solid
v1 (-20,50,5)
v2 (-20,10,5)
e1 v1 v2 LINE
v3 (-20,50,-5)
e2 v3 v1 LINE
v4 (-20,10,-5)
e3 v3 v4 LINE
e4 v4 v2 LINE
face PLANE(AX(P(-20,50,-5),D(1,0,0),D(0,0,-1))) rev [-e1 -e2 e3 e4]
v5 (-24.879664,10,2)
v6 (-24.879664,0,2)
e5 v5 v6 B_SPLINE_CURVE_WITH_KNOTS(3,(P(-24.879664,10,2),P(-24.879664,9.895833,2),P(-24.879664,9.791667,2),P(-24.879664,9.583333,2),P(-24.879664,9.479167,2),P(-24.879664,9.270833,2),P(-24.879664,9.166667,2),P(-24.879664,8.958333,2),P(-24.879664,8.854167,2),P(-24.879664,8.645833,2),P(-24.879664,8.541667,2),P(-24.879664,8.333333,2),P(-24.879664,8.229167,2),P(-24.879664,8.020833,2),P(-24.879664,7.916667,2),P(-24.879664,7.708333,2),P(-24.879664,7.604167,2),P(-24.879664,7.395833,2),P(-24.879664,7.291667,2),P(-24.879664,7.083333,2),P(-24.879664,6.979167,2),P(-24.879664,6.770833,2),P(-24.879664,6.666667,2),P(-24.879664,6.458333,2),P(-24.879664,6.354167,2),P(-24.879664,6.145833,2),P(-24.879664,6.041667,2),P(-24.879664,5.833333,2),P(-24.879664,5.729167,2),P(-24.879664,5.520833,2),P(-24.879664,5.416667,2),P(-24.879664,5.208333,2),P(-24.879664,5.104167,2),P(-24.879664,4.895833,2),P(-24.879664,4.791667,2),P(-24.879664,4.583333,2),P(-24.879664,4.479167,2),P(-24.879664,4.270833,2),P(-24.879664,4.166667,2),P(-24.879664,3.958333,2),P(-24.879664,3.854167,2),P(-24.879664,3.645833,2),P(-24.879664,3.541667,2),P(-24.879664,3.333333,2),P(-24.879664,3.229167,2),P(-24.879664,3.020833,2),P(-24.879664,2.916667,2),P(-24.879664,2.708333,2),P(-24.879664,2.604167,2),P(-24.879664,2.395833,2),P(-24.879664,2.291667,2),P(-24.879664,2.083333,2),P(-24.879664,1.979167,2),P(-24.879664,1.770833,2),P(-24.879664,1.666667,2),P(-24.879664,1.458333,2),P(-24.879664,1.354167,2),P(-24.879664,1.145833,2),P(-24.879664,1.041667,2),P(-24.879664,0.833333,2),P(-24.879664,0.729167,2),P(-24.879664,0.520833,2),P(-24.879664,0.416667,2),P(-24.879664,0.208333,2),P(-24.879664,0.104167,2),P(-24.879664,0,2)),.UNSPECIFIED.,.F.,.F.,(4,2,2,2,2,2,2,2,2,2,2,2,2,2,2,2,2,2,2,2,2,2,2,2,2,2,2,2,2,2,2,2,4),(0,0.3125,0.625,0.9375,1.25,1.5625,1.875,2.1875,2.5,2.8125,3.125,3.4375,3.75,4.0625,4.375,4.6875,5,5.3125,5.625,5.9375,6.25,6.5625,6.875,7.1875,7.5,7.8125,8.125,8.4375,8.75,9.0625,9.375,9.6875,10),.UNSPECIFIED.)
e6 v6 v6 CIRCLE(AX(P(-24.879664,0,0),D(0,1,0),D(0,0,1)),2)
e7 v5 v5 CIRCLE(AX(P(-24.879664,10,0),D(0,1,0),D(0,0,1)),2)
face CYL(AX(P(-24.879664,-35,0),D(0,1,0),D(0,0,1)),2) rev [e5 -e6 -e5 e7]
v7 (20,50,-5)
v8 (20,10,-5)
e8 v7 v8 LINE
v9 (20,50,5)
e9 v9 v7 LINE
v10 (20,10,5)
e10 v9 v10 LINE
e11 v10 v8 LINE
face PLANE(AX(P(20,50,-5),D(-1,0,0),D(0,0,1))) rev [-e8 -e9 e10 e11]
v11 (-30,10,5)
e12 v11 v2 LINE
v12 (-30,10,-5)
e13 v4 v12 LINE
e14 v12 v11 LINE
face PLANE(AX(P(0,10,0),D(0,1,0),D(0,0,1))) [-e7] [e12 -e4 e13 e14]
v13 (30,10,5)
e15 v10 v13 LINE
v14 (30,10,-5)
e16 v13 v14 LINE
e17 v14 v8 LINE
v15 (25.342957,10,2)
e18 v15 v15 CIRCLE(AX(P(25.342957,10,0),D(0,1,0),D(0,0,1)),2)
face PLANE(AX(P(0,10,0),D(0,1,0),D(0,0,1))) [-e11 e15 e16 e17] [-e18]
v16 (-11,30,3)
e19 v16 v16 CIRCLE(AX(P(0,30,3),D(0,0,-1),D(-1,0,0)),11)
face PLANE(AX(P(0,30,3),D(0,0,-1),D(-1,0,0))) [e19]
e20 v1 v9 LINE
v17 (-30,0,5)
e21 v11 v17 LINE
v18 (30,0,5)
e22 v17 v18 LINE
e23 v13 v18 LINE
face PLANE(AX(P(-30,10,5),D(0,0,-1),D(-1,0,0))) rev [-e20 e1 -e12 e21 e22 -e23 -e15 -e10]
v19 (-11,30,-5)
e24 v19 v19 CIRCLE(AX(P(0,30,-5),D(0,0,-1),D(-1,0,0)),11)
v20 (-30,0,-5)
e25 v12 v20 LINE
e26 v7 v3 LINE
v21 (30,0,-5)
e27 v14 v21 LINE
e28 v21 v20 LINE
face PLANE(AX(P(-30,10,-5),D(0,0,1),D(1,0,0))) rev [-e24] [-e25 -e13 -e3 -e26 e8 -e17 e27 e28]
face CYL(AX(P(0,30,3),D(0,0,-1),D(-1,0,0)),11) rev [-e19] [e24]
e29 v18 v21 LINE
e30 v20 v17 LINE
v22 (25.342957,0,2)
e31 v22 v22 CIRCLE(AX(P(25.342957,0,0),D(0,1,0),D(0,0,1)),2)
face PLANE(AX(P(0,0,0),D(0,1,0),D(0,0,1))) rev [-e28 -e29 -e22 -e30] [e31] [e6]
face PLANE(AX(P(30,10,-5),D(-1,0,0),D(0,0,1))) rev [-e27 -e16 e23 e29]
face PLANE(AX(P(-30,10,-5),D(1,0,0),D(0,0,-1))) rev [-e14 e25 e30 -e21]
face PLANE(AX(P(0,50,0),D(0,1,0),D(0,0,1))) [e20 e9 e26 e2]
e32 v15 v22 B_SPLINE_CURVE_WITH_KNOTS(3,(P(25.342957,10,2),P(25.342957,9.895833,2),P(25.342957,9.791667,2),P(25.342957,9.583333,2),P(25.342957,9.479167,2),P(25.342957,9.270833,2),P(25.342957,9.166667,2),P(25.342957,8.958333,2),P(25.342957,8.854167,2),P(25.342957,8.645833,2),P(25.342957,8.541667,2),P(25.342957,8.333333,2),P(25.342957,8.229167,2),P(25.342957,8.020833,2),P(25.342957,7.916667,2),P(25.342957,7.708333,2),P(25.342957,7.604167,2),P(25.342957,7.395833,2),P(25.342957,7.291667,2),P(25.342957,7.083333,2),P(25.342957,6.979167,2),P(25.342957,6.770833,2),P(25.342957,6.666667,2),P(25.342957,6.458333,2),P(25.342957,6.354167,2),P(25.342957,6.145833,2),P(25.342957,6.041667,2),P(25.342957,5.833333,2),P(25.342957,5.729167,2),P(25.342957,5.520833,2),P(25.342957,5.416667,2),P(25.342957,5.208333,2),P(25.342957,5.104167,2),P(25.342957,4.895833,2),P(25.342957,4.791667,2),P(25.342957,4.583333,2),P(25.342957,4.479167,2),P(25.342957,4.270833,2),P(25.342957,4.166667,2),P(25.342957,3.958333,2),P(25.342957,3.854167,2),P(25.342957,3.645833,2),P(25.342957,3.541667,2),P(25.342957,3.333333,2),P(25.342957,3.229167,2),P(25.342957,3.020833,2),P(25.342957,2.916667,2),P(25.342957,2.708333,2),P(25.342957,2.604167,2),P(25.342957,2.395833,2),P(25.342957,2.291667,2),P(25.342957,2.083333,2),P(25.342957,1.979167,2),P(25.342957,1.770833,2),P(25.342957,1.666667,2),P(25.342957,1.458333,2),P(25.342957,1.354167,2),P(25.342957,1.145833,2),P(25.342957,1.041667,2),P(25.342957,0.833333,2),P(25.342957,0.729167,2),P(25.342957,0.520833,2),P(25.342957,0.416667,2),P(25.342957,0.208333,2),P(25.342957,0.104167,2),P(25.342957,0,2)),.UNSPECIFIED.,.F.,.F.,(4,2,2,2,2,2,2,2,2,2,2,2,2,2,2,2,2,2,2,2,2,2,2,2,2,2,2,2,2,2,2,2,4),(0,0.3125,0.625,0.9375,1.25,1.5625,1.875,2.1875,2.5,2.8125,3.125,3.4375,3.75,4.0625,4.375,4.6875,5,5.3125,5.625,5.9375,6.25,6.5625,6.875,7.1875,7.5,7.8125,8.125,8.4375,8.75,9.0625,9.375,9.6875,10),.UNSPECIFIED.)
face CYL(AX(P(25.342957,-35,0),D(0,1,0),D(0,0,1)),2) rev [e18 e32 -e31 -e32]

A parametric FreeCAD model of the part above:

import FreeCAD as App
import Part
import Sketcher

V = App.Vector

doc = App.newDocument("Part")
body = doc.addObject("PartDesign::Body", "Body")

# Sketch on XZ plane
sketch1 = doc.addObject("Sketcher::SketchObject", "Sketch")
body.addObject(sketch1)
sketch1.AttachmentSupport = (doc.XZ_Plane, [""])
sketch1.MapMode = "FlatFace"
sketch1.addGeometry([
    Part.LineSegment(V(-30, -5, 0), V(-30, 5, 0)),
    Part.LineSegment(V(-30, 5, 0), V(30, 5, 0)),
    Part.LineSegment(V(30, 5, 0), V(30, -5, 0)),
    Part.LineSegment(V(30, -5, 0), V(-30, -5, 0)),
], False)
sketch1.addConstraint([
    Sketcher.Constraint("Coincident", 0, 2, 1, 1),
    Sketcher.Constraint("Coincident", 1, 2, 2, 1),
    Sketcher.Constraint("Coincident", 2, 2, 3, 1),
    Sketcher.Constraint("Coincident", 3, 2, 0, 1),
    Sketcher.Constraint("Vertical", 0),
    Sketcher.Constraint("Horizontal", 1),
    Sketcher.Constraint("Vertical", 2),
    Sketcher.Constraint("Horizontal", 3),
    Sketcher.Constraint("Symmetric", 0, 2, 2, 2, -1, 1),
    Sketcher.Constraint("DistanceX", 1, 1, 1, 2, 60.0),
    Sketcher.Constraint("DistanceY", 0, 1, 0, 2, 10.0),
])
pad1 = doc.addObject("PartDesign::Pad", "Pad")
body.addObject(pad1)
pad1.Profile = sketch1
pad1.Length = 10
pad1.Reversed = True

# Sketch on XZ plane
sketch2 = doc.addObject("Sketcher::SketchObject", "Sketch001")
body.addObject(sketch2)
sketch2.AttachmentSupport = (doc.XZ_Plane, [""])
sketch2.MapMode = "FlatFace"
sketch2.AttachmentOffset = App.Placement(V(0, 0, -10), App.Rotation())
sketch2.addGeometry([
    Part.LineSegment(V(-20, -5, 0), V(-20, 5, 0)),
    Part.LineSegment(V(-20, 5, 0), V(20, 5, 0)),
    Part.LineSegment(V(20, 5, 0), V(20, -5, 0)),
    Part.LineSegment(V(20, -5, 0), V(-20, -5, 0)),
], False)
sketch2.addConstraint([
    Sketcher.Constraint("Coincident", 0, 2, 1, 1),
    Sketcher.Constraint("Coincident", 1, 2, 2, 1),
    Sketcher.Constraint("Coincident", 2, 2, 3, 1),
    Sketcher.Constraint("Coincident", 3, 2, 0, 1),
    Sketcher.Constraint("Vertical", 0),
    Sketcher.Constraint("Horizontal", 1),
    Sketcher.Constraint("Vertical", 2),
    Sketcher.Constraint("Horizontal", 3),
    Sketcher.Constraint("Symmetric", 0, 2, 2, 2, -1, 1),
    Sketcher.Constraint("DistanceX", 1, 1, 1, 2, 40.0),
    Sketcher.Constraint("DistanceY", 0, 1, 0, 2, 10.0),
])
pad2 = doc.addObject("PartDesign::Pad", "Pad001")
body.addObject(pad2)
pad2.Profile = sketch2
pad2.Length = 40
pad2.Reversed = True

# Sketch on XY plane
sketch3 = doc.addObject("Sketcher::SketchObject", "Sketch002")
body.addObject(sketch3)
sketch3.AttachmentSupport = (doc.XY_Plane, [""])
sketch3.MapMode = "FlatFace"
sketch3.AttachmentOffset = App.Placement(V(0, 0, -5), App.Rotation())
sketch3.addGeometry(Part.Circle(V(0, 30, 0), V(0, 0, 1), 11), False)
sketch3.addConstraint([
    Sketcher.Constraint("PointOnObject", 0, 3, -2),
    Sketcher.Constraint("Diameter", 0, 22.0),
    Sketcher.Constraint("DistanceY", -1, 1, 0, 3, 30.0),
])
pocket1 = doc.addObject("PartDesign::Pocket", "Pocket")
body.addObject(pocket1)
pocket1.Profile = sketch3
pocket1.Length = 8
pocket1.Reversed = True

# Sketch on XZ plane
sketch4 = doc.addObject("Sketcher::SketchObject", "Sketch003")
body.addObject(sketch4)
sketch4.AttachmentSupport = (doc.XZ_Plane, [""])
sketch4.MapMode = "FlatFace"
sketch4.AttachmentOffset = App.Placement(V(0, 0, -10), App.Rotation())
sketch4.addGeometry([
    Part.Circle(V(-24.879664, 0, 0), V(0, 0, 1), 2),
    Part.Circle(V(25.342957, 0, 0), V(0, 0, 1), 2),
], False)
sketch4.addConstraint([
    Sketcher.Constraint("Equal", 0, 1),
    Sketcher.Constraint("PointOnObject", 0, 3, -1),
    Sketcher.Constraint("PointOnObject", 1, 3, -1),
    Sketcher.Constraint("Diameter", 0, 4.0),
    Sketcher.Constraint("DistanceX", 0, 3, 1, 3, 50.22262),
    Sketcher.Constraint("DistanceX", 0, 3, -1, 1, 24.879664),
])
pocket2 = doc.addObject("PartDesign::Pocket", "Pocket001")
body.addObject(pocket2)
pocket2.Profile = sketch4
pocket2.Length = 45
pocket2.Reversed = True

doc.recompute()
